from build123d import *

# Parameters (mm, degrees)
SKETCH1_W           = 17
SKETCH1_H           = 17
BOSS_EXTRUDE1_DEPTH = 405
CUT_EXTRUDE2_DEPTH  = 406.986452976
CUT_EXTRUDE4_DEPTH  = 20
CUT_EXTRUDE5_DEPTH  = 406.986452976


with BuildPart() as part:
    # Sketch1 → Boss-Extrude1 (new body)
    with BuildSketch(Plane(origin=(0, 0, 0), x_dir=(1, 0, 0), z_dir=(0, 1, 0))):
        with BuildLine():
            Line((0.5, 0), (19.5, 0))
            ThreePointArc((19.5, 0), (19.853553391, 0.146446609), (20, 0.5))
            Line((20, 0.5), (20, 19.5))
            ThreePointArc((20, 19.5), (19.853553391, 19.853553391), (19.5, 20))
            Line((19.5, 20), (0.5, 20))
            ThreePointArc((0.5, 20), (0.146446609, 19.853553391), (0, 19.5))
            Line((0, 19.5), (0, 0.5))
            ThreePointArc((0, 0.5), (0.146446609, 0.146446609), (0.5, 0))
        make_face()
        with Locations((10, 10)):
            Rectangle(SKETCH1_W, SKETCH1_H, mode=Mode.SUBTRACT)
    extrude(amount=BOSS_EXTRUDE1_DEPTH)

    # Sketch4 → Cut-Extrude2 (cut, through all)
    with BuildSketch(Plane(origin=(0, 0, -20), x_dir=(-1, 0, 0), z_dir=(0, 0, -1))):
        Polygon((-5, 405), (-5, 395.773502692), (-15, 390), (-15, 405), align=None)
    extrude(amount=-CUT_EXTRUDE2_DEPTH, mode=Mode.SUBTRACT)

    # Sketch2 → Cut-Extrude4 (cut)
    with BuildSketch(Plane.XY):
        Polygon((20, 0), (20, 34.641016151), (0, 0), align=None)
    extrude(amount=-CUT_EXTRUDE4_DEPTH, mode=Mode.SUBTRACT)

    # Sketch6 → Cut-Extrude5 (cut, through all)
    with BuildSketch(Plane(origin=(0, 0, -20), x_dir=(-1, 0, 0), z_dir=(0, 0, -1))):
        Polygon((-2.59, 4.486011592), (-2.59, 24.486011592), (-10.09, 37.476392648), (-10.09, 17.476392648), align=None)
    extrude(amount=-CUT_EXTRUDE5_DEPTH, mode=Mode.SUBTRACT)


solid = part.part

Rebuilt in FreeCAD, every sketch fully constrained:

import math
import FreeCAD as App
import Part
import Sketcher

V = App.Vector
Q = App.Units.Quantity

doc = App.newDocument("Part")
body = doc.addObject("PartDesign::Body", "Body")

sketch1 = body.newObject("Sketcher::SketchObject", "Sketch")
sketch1.AttachmentSupport = (doc.getObject("XZ_Plane"), [""])
sketch1.MapMode = "FlatFace"
sketch1.addGeometry([
    Part.LineSegment(V(0.5, 0, 0), V(19.5, 0, 0)),
    Part.ArcOfCircle(Part.Circle(V(19.5, -0.5, 0), V(0, 0, 1), 0.5), math.radians(0), math.radians(90)),
    Part.LineSegment(V(20, -0.5, 0), V(20, -19.5, 0)),
    Part.ArcOfCircle(Part.Circle(V(19.5, -19.5, 0), V(0, 0, 1), 0.5), math.radians(-90), math.radians(0)),
    Part.LineSegment(V(19.5, -20, 0), V(0.5, -20, 0)),
    Part.ArcOfCircle(Part.Circle(V(0.5, -19.5, 0), V(0, 0, 1), 0.5), math.radians(180), math.radians(270)),
    Part.LineSegment(V(0, -19.5, 0), V(0, -0.5, 0)),
    Part.ArcOfCircle(Part.Circle(V(0.5, -0.5, 0), V(0, 0, 1), 0.5), math.radians(90), math.radians(180)),
    Part.LineSegment(V(18.5, -1.5, 0), V(1.5, -1.5, 0)),
    Part.LineSegment(V(1.5, -1.5, 0), V(1.5, -18.5, 0)),
    Part.LineSegment(V(1.5, -18.5, 0), V(18.5, -18.5, 0)),
    Part.LineSegment(V(18.5, -18.5, 0), V(18.5, -1.5, 0)),
], False)
sketch1.addConstraint([
    Sketcher.Constraint("Tangent", 0, 2, 1, 2),
    Sketcher.Constraint("Tangent", 1, 1, 2, 1),
    Sketcher.Constraint("Tangent", 2, 2, 3, 2),
    Sketcher.Constraint("Tangent", 3, 1, 4, 1),
    Sketcher.Constraint("Tangent", 4, 2, 5, 2),
    Sketcher.Constraint("Tangent", 5, 1, 6, 1),
    Sketcher.Constraint("Tangent", 6, 2, 7, 2),
    Sketcher.Constraint("Tangent", 7, 1, 0, 1),
    Sketcher.Constraint("Coincident", 8, 2, 9, 1),
    Sketcher.Constraint("Coincident", 9, 2, 10, 1),
    Sketcher.Constraint("Coincident", 10, 2, 11, 1),
    Sketcher.Constraint("Coincident", 11, 2, 8, 1),
    Sketcher.Constraint("Horizontal", 0),
    Sketcher.Constraint("Vertical", 2),
    Sketcher.Constraint("Horizontal", 4),
    Sketcher.Constraint("Vertical", 6),
    Sketcher.Constraint("Horizontal", 8),
    Sketcher.Constraint("Vertical", 9),
    Sketcher.Constraint("Horizontal", 10),
    Sketcher.Constraint("Vertical", 11),
    Sketcher.Constraint("Equal", 1, 3),
    Sketcher.Constraint("Equal", 3, 5),
    Sketcher.Constraint("Equal", 5, 7),
    Sketcher.Constraint("PointOnObject", 0, 2, -1),
    Sketcher.Constraint("PointOnObject", 5, 1, -2),
    Sketcher.Constraint("Equal", 4, 2),
    Sketcher.Constraint("Equal", 10, 9),
    Sketcher.Constraint("Radius", 1, Q("0.5 mm")),
    Sketcher.Constraint("DistanceX", 0, 1, 0, 2, Q("19 mm")),
    Sketcher.Constraint("DistanceX", 8, 2, 8, 1, Q("17 mm")),
    Sketcher.Constraint("DistanceX", 7, 3, 8, 2, Q("1 mm")),
    Sketcher.Constraint("DistanceY", 8, 2, 7, 3, Q("1 mm")),
])
pad1 = body.newObject("PartDesign::Pad", "Pad")
pad1.Profile = sketch1
pad1.Length = 405
pad1.Reversed = True

sketch2 = body.newObject("Sketcher::SketchObject", "Sketch001")
sketch2.AttachmentSupport = (doc.getObject("XY_Plane"), [""])
sketch2.MapMode = "FlatFace"
sketch2.AttachmentOffset = App.Placement(V(0, 0, -20), App.Rotation())
sketch2.addGeometry([
    Part.LineSegment(V(5, 396, 0), V(5, 405, 0)),
    Part.LineSegment(V(5, 405, 0), V(15, 405, 0)),
    Part.LineSegment(V(15, 405, 0), V(15, 390, 0)),
    Part.LineSegment(V(15, 390, 0), V(5, 396, 0)),
], False)
sketch2.addConstraint([
    Sketcher.Constraint("Coincident", 0, 2, 1, 1),
    Sketcher.Constraint("Coincident", 1, 2, 2, 1),
    Sketcher.Constraint("Coincident", 2, 2, 3, 1),
    Sketcher.Constraint("Coincident", 3, 2, 0, 1),
    Sketcher.Constraint("Vertical", 0),
    Sketcher.Constraint("Horizontal", 1),
    Sketcher.Constraint("Vertical", 2),
    Sketcher.Constraint("DistanceX", 1, 1, 1, 2, Q("10 mm")),
    Sketcher.Constraint("DistanceY", 2, 2, 2, 1, Q("15 mm")),
    Sketcher.Constraint("Angle", 3, Q("150 deg")),
    Sketcher.Constraint("DistanceX", -1, 1, 0, 2, Q("5 mm")),
    Sketcher.Constraint("DistanceY", -1, 1, 0, 2, Q("405 mm")),
])
pocket1 = body.newObject("PartDesign::Pocket", "Pocket")
pocket1.Profile = sketch2
pocket1.Type = "ThroughAll"
pocket1.Reversed = True

sketch3 = body.newObject("Sketcher::SketchObject", "Sketch002")
sketch3.AttachmentSupport = (doc.getObject("XY_Plane"), [""])
sketch3.MapMode = "FlatFace"
sketch3.addGeometry([
    Part.LineSegment(V(20, 0, 0), V(20, 35, 0)),
    Part.LineSegment(V(20, 35, 0), V(0, 0, 0)),
    Part.LineSegment(V(0, 0, 0), V(20, 0, 0)),
], False)
sketch3.addConstraint([
    Sketcher.Constraint("Coincident", 0, 2, 1, 1),
    Sketcher.Constraint("Coincident", 1, 2, 2, 1),
    Sketcher.Constraint("Coincident", 2, 2, 0, 1),
    Sketcher.Constraint("Vertical", 0),
    Sketcher.Constraint("Horizontal", 2),
    Sketcher.Constraint("Coincident", 1, 2, -1, 1),
    Sketcher.Constraint("DistanceX", 2, 1, 2, 2, Q("20 mm")),
    Sketcher.Constraint("Angle", 1, Q("-120 deg")),
])
pocket2 = body.newObject("PartDesign::Pocket", "Pocket001")
pocket2.Profile = sketch3
pocket2.Length = 20

sketch4 = body.newObject("Sketcher::SketchObject", "Sketch003")
sketch4.AttachmentSupport = (doc.getObject("XY_Plane"), [""])
sketch4.MapMode = "FlatFace"
sketch4.AttachmentOffset = App.Placement(V(0, 0, -20), App.Rotation())
sketch4.addGeometry([
    Part.LineSegment(V(3, 4, 0), V(3, 24, 0)),
    Part.LineSegment(V(3, 24, 0), V(10, 37, 0)),
    Part.LineSegment(V(10, 37, 0), V(10, 17, 0)),
    Part.LineSegment(V(10, 17, 0), V(3, 4, 0)),
], False)
sketch4.addConstraint([
    Sketcher.Constraint("Coincident", 0, 2, 1, 1),
    Sketcher.Constraint("Coincident", 1, 2, 2, 1),
    Sketcher.Constraint("Coincident", 2, 2, 3, 1),
    Sketcher.Constraint("Coincident", 3, 2, 0, 1),
    Sketcher.Constraint("Vertical", 0),
    Sketcher.Constraint("Vertical", 2),
    Sketcher.Constraint("Parallel", 1, 3),
    Sketcher.Constraint("DistanceY", 0, 1, 0, 2, Q("20 mm")),
    Sketcher.Constraint("Angle", 1, Q("60 deg")),
    Sketcher.Constraint("Distance", 1, Q("15 mm")),
    Sketcher.Constraint("DistanceX", -1, 1, 0, 2, Q("2.59 mm")),
    Sketcher.Constraint("DistanceY", -1, 1, 0, 2, Q("24.486012 mm")),
])
pocket3 = body.newObject("PartDesign::Pocket", "Pocket002")
pocket3.Profile = sketch4
pocket3.Type = "ThroughAll"
pocket3.Reversed = True

doc.recompute()
